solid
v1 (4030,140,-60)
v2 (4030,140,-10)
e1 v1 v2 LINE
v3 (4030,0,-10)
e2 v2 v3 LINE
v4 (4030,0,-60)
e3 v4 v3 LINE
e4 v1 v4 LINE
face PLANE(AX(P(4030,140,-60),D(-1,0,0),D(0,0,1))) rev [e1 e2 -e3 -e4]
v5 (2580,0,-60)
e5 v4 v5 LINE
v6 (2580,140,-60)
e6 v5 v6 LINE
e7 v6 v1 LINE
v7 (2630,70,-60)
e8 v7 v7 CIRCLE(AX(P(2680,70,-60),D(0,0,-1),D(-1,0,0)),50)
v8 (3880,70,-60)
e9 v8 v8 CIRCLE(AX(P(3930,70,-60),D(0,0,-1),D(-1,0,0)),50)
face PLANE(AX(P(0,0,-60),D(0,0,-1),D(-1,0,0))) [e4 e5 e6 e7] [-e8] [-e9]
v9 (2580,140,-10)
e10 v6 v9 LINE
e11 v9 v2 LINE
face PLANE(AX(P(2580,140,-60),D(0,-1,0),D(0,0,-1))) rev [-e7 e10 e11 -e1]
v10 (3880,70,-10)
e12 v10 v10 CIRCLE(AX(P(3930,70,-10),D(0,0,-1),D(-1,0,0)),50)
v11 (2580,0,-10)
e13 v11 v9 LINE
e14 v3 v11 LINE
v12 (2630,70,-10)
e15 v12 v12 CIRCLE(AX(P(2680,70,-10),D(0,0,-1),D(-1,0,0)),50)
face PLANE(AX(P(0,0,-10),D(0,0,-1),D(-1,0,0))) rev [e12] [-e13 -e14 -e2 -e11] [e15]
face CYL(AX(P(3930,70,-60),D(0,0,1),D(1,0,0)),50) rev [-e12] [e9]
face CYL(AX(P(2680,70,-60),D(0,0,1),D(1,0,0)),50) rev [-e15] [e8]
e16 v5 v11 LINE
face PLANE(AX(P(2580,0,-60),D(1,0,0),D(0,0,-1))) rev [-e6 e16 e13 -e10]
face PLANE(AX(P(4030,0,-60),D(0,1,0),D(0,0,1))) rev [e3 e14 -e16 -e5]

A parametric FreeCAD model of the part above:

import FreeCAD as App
import Part
import Sketcher

V = App.Vector
Q = App.Units.Quantity


def add_polygon(sketch, points):
    """Adds a closed chain of lines whose ends are joined by coincident constraints."""
    first, n = sketch.GeometryCount, len(points)
    for a, b in zip(points, points[1:] + points[:1]):
        sketch.addGeometry(Part.LineSegment(App.Vector(*a, 0), App.Vector(*b, 0)), False)
    for i in range(n):
        sketch.addConstraint(Sketcher.Constraint("Coincident", first + i, 2, first + (i + 1) % n, 1))

doc = App.newDocument("Part")
body = doc.addObject("PartDesign::Body", "Body")

# Sketch on XY plane
sketch1 = body.newObject("Sketcher::SketchObject", "Sketch")
sketch1.AttachmentSupport = (doc.getObject("XY_Plane"), [""])
sketch1.MapMode = "FlatFace"
add_polygon(sketch1, [(0, 140), (0, 0), (3930, 0), (3930, 140)])  # lines 0-3
sketch1.addConstraint([
    Sketcher.Constraint("Vertical", 0),
    Sketcher.Constraint("Horizontal", 1),
    Sketcher.Constraint("Vertical", 2),
    Sketcher.Constraint("Horizontal", 3),
    Sketcher.Constraint("Coincident", 0, 2, -1, 1),
    Sketcher.Constraint("DistanceX", 1, 1, 1, 2, Q("3930 mm")),
    Sketcher.Constraint("DistanceY", 0, 2, 0, 1, Q("140 mm")),
])
pad1 = body.newObject("PartDesign::Pad", "Pad")
pad1.Profile = sketch1
pad1.Length = 50

# Sketch on XY plane
sketch2 = body.newObject("Sketcher::SketchObject", "Sketch001")
sketch2.AttachmentSupport = (doc.getObject("XY_Plane"), [""])
sketch2.MapMode = "FlatFace"
sketch2.AttachmentOffset = App.Placement(V(0, 0, 50), App.Rotation())
sketch2.addGeometry([
    Part.Circle(V(3930, 70, 0), V(0, 0, 1), 50),
    Part.Circle(V(0, 70, 0), V(0, 0, 1), 50),
], False)
sketch2.addConstraint([
    Sketcher.Constraint("Equal", 0, 1),
    Sketcher.Constraint("PointOnObject", 1, 3, -2),
    Sketcher.Constraint("Horizontal", 0, 3, 1, 3),
    Sketcher.Constraint("Diameter", 0, Q("100 mm")),
    Sketcher.Constraint("DistanceX", -1, 1, 0, 3, Q("3930 mm")),
    Sketcher.Constraint("DistanceY", -1, 1, 0, 3, Q("70 mm")),
])
pocket1 = body.newObject("PartDesign::Pocket", "Pocket")
pocket1.Profile = sketch2
pocket1.Length = 50

# Sketch on XY plane
sketch3 = body.newObject("Sketcher::SketchObject", "Sketch002")
sketch3.AttachmentSupport = (doc.getObject("XY_Plane"), [""])
sketch3.MapMode = "FlatFace"
add_polygon(sketch3, [(4030, 140), (4030, 0), (3930, 0), (3930, 140)])  # lines 0-3
add_polygon(sketch3, [(0, 140), (0, 0), (-100, 0), (-100, 140)])  # lines 4-7
sketch3.addConstraint([
    Sketcher.Constraint("Vertical", 0),
    Sketcher.Constraint("Horizontal", 1),
    Sketcher.Constraint("Vertical", 2),
    Sketcher.Constraint("Horizontal", 3),
    Sketcher.Constraint("Vertical", 4),
    Sketcher.Constraint("Horizontal", 5),
    Sketcher.Constraint("Vertical", 6),
    Sketcher.Constraint("Horizontal", 7),
    Sketcher.Constraint("Coincident", 4, 2, -1, 1),
    Sketcher.Constraint("PointOnObject", 0, 2, -1),
    Sketcher.Constraint("Horizontal", 3, 2, 6, 2),
    Sketcher.Constraint("Equal", 3, 5),
    Sketcher.Constraint("DistanceX", 1, 2, 1, 1, Q("100 mm")),
    Sketcher.Constraint("DistanceY", 0, 2, 0, 1, Q("140 mm")),
    Sketcher.Constraint("DistanceX", -1, 1, 0, 2, Q("4030 mm")),
])
pad2 = body.newObject("PartDesign::Pad", "Pad001")
pad2.Profile = sketch3
pad2.Length = 50

# Sketch on XY plane
sketch4 = body.newObject("Sketcher::SketchObject", "Sketch003")
sketch4.AttachmentSupport = (doc.getObject("XY_Plane"), [""])
sketch4.MapMode = "FlatFace"
sketch4.addGeometry([
    Part.Circle(V(0, 70, 0), V(0, 0, 1), 50),
    Part.Circle(V(3930, 70, 0), V(0, 0, 1), 50),
], False)
sketch4.addConstraint([
    Sketcher.Constraint("Equal", 0, 1),
    Sketcher.Constraint("PointOnObject", 0, 3, -2),
    Sketcher.Constraint("Horizontal", 0, 3, 1, 3),
    Sketcher.Constraint("Diameter", 0, Q("100 mm")),
    Sketcher.Constraint("DistanceY", -1, 1, 0, 3, Q("70 mm")),
    Sketcher.Constraint("DistanceX", -1, 1, 1, 3, Q("3930 mm")),
])
pocket2 = body.newObject("PartDesign::Pocket", "Pocket001")
pocket2.Profile = sketch4
pocket2.Type = "ThroughAll"
pocket2.Reversed = True

# Sketch on XY plane
sketch5 = body.newObject("Sketcher::SketchObject", "Sketch004")
sketch5.AttachmentSupport = (doc.getObject("XY_Plane"), [""])
sketch5.MapMode = "FlatFace"
sketch5.AttachmentOffset = App.Placement(V(0, 0, 50), App.Rotation())
add_polygon(sketch5, [(-100, 140), (-100, 0), (4030, 0), (4030, 140)])  # lines 0-3
sketch5.addConstraint([
    Sketcher.Constraint("Vertical", 0),
    Sketcher.Constraint("Horizontal", 1),
    Sketcher.Constraint("Vertical", 2),
    Sketcher.Constraint("Horizontal", 3),
    Sketcher.Constraint("PointOnObject", 0, 2, -1),
    Sketcher.Constraint("DistanceX", 1, 1, 1, 2, Q("4130 mm")),
    Sketcher.Constraint("DistanceY", 0, 2, 0, 1, Q("140 mm")),
    Sketcher.Constraint("DistanceX", 0, 2, -1, 1, Q("100 mm")),
])
pocket3 = body.newObject("PartDesign::Pocket", "Pocket002")
pocket3.Profile = sketch5
pocket3.Length = 50
body2 = doc.addObject("PartDesign::Body", "Body001")

# Sketch on XY plane
sketch6 = body2.newObject("Sketcher::SketchObject", "Sketch005")
sketch6.AttachmentSupport = (doc.getObject("XY_Plane001"), [""])
sketch6.MapMode = "FlatFace"
sketch6.AttachmentOffset = App.Placement(V(0, 0, -10), App.Rotation())
add_polygon(sketch6, [(4030, 140), (4030, 0), (2580, 0), (2580, 140)])  # lines 0-3
sketch6.addGeometry(Part.Circle(V(3930, 70, 0), V(0, 0, 1), 50), False)  # 4
sketch6.addGeometry(Part.Circle(V(2680, 70, 0), V(0, 0, 1), 50), False)  # 5
sketch6.addConstraint([
    Sketcher.Constraint("Vertical", 0),
    Sketcher.Constraint("Horizontal", 1),
    Sketcher.Constraint("Vertical", 2),
    Sketcher.Constraint("Horizontal", 3),
    Sketcher.Constraint("Equal", 4, 5),
    Sketcher.Constraint("PointOnObject", 0, 2, -1),
    Sketcher.Constraint("Horizontal", 4, 3, 5, 3),
    Sketcher.Constraint("Diameter", 4, Q("100 mm")),
    Sketcher.Constraint("DistanceX", 1, 2, 1, 1, Q("1450 mm")),
    Sketcher.Constraint("DistanceY", 0, 2, 0, 1, Q("140 mm")),
    Sketcher.Constraint("DistanceX", -1, 1, 4, 3, Q("3930 mm")),
    Sketcher.Constraint("DistanceY", -1, 1, 4, 3, Q("70 mm")),
    Sketcher.Constraint("DistanceX", -1, 1, 5, 3, Q("2680 mm")),
    Sketcher.Constraint("DistanceX", -1, 1, 0, 2, Q("4030 mm")),
])
pad3 = body2.newObject("PartDesign::Pad", "Pad002")
pad3.Profile = sketch6
pad3.Length = 50
pad3.Reversed = True

doc.recompute()
